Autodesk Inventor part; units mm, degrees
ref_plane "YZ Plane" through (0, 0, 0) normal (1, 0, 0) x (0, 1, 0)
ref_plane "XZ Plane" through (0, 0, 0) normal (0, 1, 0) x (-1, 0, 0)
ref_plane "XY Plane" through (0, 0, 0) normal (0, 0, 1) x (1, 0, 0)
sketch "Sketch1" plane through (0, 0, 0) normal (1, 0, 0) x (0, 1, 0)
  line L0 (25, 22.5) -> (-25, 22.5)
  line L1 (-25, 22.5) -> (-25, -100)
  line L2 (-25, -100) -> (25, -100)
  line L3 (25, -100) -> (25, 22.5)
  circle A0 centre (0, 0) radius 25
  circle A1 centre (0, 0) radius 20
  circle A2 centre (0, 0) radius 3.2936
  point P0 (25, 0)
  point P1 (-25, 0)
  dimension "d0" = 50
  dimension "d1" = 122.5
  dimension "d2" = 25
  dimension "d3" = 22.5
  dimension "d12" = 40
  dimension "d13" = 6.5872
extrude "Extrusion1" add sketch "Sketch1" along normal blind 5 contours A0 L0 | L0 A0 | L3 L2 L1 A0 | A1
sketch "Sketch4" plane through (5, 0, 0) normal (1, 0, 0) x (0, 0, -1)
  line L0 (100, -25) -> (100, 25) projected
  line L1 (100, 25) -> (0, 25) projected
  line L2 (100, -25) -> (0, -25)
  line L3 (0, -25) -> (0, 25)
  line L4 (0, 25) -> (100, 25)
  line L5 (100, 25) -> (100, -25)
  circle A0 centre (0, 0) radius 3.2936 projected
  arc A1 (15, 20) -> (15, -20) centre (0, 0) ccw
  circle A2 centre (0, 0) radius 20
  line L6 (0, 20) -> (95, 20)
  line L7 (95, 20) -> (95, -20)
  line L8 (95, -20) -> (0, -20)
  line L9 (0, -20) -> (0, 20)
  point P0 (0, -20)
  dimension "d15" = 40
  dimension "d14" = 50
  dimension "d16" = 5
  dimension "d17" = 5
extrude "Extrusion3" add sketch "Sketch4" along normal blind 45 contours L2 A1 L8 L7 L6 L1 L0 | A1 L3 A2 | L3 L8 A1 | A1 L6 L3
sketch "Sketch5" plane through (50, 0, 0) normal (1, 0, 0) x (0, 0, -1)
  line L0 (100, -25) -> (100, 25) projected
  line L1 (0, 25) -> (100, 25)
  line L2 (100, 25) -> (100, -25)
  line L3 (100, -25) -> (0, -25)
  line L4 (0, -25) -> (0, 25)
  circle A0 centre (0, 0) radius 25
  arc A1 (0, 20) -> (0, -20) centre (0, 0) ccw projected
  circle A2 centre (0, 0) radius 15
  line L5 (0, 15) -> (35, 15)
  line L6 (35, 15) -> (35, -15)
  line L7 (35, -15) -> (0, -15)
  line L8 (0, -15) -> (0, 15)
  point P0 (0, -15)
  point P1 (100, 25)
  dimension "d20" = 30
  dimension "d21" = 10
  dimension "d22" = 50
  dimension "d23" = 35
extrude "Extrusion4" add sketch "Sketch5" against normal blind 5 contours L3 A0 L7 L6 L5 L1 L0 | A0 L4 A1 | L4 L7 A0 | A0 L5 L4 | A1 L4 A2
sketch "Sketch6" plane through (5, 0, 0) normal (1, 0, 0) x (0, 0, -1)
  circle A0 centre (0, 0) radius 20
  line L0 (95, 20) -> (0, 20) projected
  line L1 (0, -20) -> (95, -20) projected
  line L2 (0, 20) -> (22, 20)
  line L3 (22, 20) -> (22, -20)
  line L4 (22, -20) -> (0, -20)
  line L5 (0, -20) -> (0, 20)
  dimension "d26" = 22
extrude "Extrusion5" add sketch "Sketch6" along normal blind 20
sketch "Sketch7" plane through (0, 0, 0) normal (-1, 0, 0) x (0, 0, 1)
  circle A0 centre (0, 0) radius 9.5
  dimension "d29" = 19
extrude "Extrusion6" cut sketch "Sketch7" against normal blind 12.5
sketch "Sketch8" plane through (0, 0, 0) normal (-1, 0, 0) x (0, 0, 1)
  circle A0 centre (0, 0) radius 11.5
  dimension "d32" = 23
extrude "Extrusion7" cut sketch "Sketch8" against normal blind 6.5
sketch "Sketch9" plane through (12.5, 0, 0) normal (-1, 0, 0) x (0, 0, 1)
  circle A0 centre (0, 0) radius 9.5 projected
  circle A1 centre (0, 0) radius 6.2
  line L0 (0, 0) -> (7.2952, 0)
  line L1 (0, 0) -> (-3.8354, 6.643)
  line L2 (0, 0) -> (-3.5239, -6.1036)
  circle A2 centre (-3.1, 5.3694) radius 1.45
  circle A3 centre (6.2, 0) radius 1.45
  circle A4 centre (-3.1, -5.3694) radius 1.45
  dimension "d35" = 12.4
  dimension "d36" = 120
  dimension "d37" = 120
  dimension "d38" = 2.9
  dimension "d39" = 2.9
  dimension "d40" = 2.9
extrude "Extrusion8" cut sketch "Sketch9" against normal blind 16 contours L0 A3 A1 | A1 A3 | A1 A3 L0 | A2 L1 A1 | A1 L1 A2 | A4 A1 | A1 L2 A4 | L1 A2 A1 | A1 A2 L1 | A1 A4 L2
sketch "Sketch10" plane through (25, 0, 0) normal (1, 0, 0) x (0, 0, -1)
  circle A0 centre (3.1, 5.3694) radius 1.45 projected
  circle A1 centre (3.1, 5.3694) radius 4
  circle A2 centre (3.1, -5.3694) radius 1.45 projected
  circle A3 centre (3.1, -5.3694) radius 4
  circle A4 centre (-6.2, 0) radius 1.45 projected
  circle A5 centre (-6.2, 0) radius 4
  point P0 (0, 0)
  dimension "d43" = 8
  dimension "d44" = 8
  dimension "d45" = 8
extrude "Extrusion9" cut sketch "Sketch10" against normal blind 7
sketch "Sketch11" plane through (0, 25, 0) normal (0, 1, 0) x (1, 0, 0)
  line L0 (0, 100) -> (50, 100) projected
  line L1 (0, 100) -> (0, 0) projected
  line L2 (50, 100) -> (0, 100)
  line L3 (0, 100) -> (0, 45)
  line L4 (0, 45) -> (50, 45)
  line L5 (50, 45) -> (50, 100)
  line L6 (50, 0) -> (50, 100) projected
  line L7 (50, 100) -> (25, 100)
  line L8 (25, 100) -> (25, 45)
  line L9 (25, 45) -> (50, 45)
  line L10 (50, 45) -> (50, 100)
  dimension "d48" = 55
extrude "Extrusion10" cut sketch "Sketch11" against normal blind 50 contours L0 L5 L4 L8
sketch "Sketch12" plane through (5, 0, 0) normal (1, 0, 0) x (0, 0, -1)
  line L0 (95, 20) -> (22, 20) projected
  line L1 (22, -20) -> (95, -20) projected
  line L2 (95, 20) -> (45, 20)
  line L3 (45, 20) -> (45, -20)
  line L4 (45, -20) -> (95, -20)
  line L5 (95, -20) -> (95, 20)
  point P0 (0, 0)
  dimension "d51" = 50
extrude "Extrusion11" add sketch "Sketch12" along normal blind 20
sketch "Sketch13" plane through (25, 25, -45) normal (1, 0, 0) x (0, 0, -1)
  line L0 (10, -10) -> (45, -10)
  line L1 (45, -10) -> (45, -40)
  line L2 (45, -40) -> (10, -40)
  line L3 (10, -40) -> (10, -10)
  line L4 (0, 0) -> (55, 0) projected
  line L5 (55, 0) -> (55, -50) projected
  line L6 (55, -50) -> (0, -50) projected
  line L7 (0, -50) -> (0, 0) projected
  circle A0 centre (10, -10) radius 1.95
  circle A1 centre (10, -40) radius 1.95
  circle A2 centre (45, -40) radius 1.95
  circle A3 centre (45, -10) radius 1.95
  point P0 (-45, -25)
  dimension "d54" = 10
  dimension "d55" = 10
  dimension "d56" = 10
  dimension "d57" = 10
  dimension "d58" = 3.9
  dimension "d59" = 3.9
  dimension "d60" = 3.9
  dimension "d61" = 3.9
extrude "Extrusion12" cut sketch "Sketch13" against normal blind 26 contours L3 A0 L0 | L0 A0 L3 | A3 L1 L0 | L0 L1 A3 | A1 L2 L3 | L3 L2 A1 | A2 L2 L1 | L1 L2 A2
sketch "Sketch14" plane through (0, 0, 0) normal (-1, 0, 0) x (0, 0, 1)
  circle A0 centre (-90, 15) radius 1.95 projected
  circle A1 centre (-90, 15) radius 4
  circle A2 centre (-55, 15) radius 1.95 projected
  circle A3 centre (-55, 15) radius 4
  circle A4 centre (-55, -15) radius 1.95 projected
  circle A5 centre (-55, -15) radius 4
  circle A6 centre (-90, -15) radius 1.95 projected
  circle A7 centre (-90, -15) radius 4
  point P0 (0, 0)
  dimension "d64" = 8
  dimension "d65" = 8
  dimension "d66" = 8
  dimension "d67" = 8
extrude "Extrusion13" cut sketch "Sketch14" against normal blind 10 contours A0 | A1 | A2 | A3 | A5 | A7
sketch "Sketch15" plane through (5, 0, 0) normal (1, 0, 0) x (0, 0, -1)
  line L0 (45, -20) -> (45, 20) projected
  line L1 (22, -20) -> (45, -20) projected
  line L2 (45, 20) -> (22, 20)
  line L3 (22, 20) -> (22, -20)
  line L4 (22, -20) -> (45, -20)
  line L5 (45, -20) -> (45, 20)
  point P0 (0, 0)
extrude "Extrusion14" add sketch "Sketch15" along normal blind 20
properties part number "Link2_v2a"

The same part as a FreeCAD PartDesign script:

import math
import FreeCAD as App
import Part
import Sketcher
from FreeCAD import Vector

doc = App.newDocument("Part")
body = doc.addObject("PartDesign::Body", "Body")

sketch1 = body.newObject("Sketcher::SketchObject", "Sketch")
sketch1.AttachmentSupport = (doc.getObject("YZ_Plane"), [""])
sketch1.MapMode = "FlatFace"
sketch1.addGeometry([
    Part.ArcOfCircle(Part.Circle(Vector(0, 0, 0), Vector(0, 0, 1), 25), math.radians(0), math.radians(180)),
    Part.LineSegment(Vector(-25, 0, 0), Vector(-25, -100, 0)),
    Part.LineSegment(Vector(-25, -100, 0), Vector(25, -100, 0)),
    Part.LineSegment(Vector(25, -100, 0), Vector(25, 0, 0)),
    Part.Circle(Vector(0, 0, 0), Vector(0, 0, 1), 3.3),
], False)
sketch1.addConstraint([
    Sketcher.Constraint("Tangent", 0, 2, 1, 1),
    Sketcher.Constraint("Coincident", 1, 2, 2, 1),
    Sketcher.Constraint("Coincident", 2, 2, 3, 1),
    Sketcher.Constraint("Tangent", 3, 2, 0, 1),
    Sketcher.Constraint("Vertical", 1),
    Sketcher.Constraint("Horizontal", 2),
    Sketcher.Constraint("Vertical", 3),
    Sketcher.Constraint("Coincident", 0, 3, -1, 1),
    Sketcher.Constraint("Coincident", 4, 3, -1, 1),
    Sketcher.Constraint("Radius", 0, 25.0),
    Sketcher.Constraint("Diameter", 4, 6.5872),
    Sketcher.Constraint("DistanceY", 1, 2, 1, 1, 100.0),
])
pad1 = body.newObject("PartDesign::Pad", "Pad")
pad1.Profile = sketch1
pad1.Length = 5

sketch2 = body.newObject("Sketcher::SketchObject", "Sketch001")
sketch2.AttachmentSupport = (doc.getObject("YZ_Plane"), [""])
sketch2.MapMode = "FlatFace"
sketch2.AttachmentOffset = App.Placement(Vector(0, 0, 5), App.Rotation())
sketch2.addGeometry([
    Part.LineSegment(Vector(-25, 0, 0), Vector(-25, -100, 0)),
    Part.LineSegment(Vector(-25, -100, 0), Vector(25, -100, 0)),
    Part.LineSegment(Vector(25, -100, 0), Vector(25, 0, 0)),
    Part.ArcOfCircle(Part.Circle(Vector(0, 0, 0), Vector(0, 0, 1), 25), math.radians(0), math.radians(180)),
    Part.LineSegment(Vector(-20, -95, 0), Vector(-20, 0, 0)),
    Part.ArcOfCircle(Part.Circle(Vector(0, 0, 0), Vector(0, 0, 1), 20), math.radians(0), math.radians(180)),
    Part.LineSegment(Vector(20, 0, 0), Vector(20, -95, 0)),
    Part.LineSegment(Vector(20, -95, 0), Vector(-20, -95, 0)),
], False)
sketch2.addConstraint([
    Sketcher.Constraint("Coincident", 0, 2, 1, 1),
    Sketcher.Constraint("Coincident", 1, 2, 2, 1),
    Sketcher.Constraint("Tangent", 2, 2, 3, 1),
    Sketcher.Constraint("Tangent", 3, 2, 0, 1),
    Sketcher.Constraint("Tangent", 4, 2, 5, 2),
    Sketcher.Constraint("Tangent", 5, 1, 6, 1),
    Sketcher.Constraint("Coincident", 6, 2, 7, 1),
    Sketcher.Constraint("Coincident", 7, 2, 4, 1),
    Sketcher.Constraint("Vertical", 0),
    Sketcher.Constraint("Horizontal", 1),
    Sketcher.Constraint("Vertical", 2),
    Sketcher.Constraint("Vertical", 4),
    Sketcher.Constraint("Vertical", 6),
    Sketcher.Constraint("Horizontal", 7),
    Sketcher.Constraint("Coincident", 3, 3, -1, 1),
    Sketcher.Constraint("Coincident", 5, 3, -1, 1),
    Sketcher.Constraint("Radius", 3, 25.0),
    Sketcher.Constraint("Radius", 5, 20.0),
    Sketcher.Constraint("DistanceY", 1, 2, 6, 2, 5.0),
    Sketcher.Constraint("DistanceY", 0, 2, 0, 1, 100.0),
])
pad2 = body.newObject("PartDesign::Pad", "Pad001")
pad2.Profile = sketch2
pad2.Length = 45

sketch3 = body.newObject("Sketcher::SketchObject", "Sketch002")
sketch3.AttachmentSupport = (doc.getObject("YZ_Plane"), [""])
sketch3.MapMode = "FlatFace"
sketch3.AttachmentOffset = App.Placement(Vector(0, 0, 50), App.Rotation())
sketch3.addGeometry([
    Part.LineSegment(Vector(-25, 0, 0), Vector(-25, -100, 0)),
    Part.LineSegment(Vector(-25, -100, 0), Vector(25, -100, 0)),
    Part.LineSegment(Vector(25, -100, 0), Vector(25, 0, 0)),
    Part.ArcOfCircle(Part.Circle(Vector(0, 0, 0), Vector(0, 0, 1), 25), math.radians(0), math.radians(180)),
    Part.LineSegment(Vector(-15, -35, 0), Vector(-15, 0, 0)),
    Part.ArcOfCircle(Part.Circle(Vector(0, 0, 0), Vector(0, 0, 1), 15), math.radians(0), math.radians(180)),
    Part.LineSegment(Vector(15, 0, 0), Vector(15, -35, 0)),
    Part.LineSegment(Vector(15, -35, 0), Vector(-15, -35, 0)),
], False)
sketch3.addConstraint([
    Sketcher.Constraint("Coincident", 0, 2, 1, 1),
    Sketcher.Constraint("Coincident", 1, 2, 2, 1),
    Sketcher.Constraint("Tangent", 2, 2, 3, 1),
    Sketcher.Constraint("Tangent", 3, 2, 0, 1),
    Sketcher.Constraint("Tangent", 4, 2, 5, 2),
    Sketcher.Constraint("Tangent", 5, 1, 6, 1),
    Sketcher.Constraint("Coincident", 6, 2, 7, 1),
    Sketcher.Constraint("Coincident", 7, 2, 4, 1),
    Sketcher.Constraint("Vertical", 0),
    Sketcher.Constraint("Horizontal", 1),
    Sketcher.Constraint("Vertical", 2),
    Sketcher.Constraint("Vertical", 4),
    Sketcher.Constraint("Vertical", 6),
    Sketcher.Constraint("Horizontal", 7),
    Sketcher.Constraint("Coincident", 3, 3, -1, 1),
    Sketcher.Constraint("Coincident", 5, 3, -1, 1),
    Sketcher.Constraint("Radius", 3, 25.0),
    Sketcher.Constraint("Radius", 5, 15.0),
    Sketcher.Constraint("DistanceY", 4, 1, 4, 2, 35.0),
    Sketcher.Constraint("DistanceY", 0, 2, 0, 1, 100.0),
])
pad3 = body.newObject("PartDesign::Pad", "Pad002")
pad3.Profile = sketch3
pad3.Length = 5
pad3.Reversed = True

sketch4 = body.newObject("Sketcher::SketchObject", "Sketch003")
sketch4.AttachmentSupport = (doc.getObject("YZ_Plane"), [""])
sketch4.MapMode = "FlatFace"
sketch4.AttachmentOffset = App.Placement(Vector(0, 0, 5), App.Rotation())
sketch4.addGeometry([
    Part.LineSegment(Vector(-20, 0, 0), Vector(-20, -22, 0)),
    Part.LineSegment(Vector(-20, -22, 0), Vector(20, -22, 0)),
    Part.LineSegment(Vector(20, -22, 0), Vector(20, 0, 0)),
    Part.ArcOfCircle(Part.Circle(Vector(0, 0, 0), Vector(0, 0, 1), 20), math.radians(0), math.radians(180)),
], False)
sketch4.addConstraint([
    Sketcher.Constraint("Coincident", 0, 2, 1, 1),
    Sketcher.Constraint("Coincident", 1, 2, 2, 1),
    Sketcher.Constraint("Tangent", 2, 2, 3, 1),
    Sketcher.Constraint("Tangent", 3, 2, 0, 1),
    Sketcher.Constraint("Vertical", 0),
    Sketcher.Constraint("Horizontal", 1),
    Sketcher.Constraint("Vertical", 2),
    Sketcher.Constraint("Coincident", 3, 3, -1, 1),
    Sketcher.Constraint("DistanceY", 0, 2, 0, 1, 22.0),
    Sketcher.Constraint("Radius", 3, 20.0),
])
pad4 = body.newObject("PartDesign::Pad", "Pad003")
pad4.Profile = sketch4
pad4.Length = 20

sketch5 = body.newObject("Sketcher::SketchObject", "Sketch004")
sketch5.AttachmentSupport = (doc.getObject("YZ_Plane"), [""])
sketch5.MapMode = "FlatFace"
sketch5.addGeometry(Part.Circle(Vector(0, 0, 0), Vector(0, 0, 1), 10), False)
sketch5.addConstraint([
    Sketcher.Constraint("Coincident", 0, 3, -1, 1),
    Sketcher.Constraint("Diameter", 0, 19.0),
])
pocket1 = body.newObject("PartDesign::Pocket", "Pocket")
pocket1.Profile = sketch5
pocket1.Length = 12.5
pocket1.Reversed = True

sketch6 = body.newObject("Sketcher::SketchObject", "Sketch005")
sketch6.AttachmentSupport = (doc.getObject("YZ_Plane"), [""])
sketch6.MapMode = "FlatFace"
sketch6.addGeometry(Part.Circle(Vector(0, 0, 0), Vector(0, 0, 1), 12), False)
sketch6.addConstraint([
    Sketcher.Constraint("Coincident", 0, 3, -1, 1),
    Sketcher.Constraint("Diameter", 0, 23.0),
])
pocket2 = body.newObject("PartDesign::Pocket", "Pocket001")
pocket2.Profile = sketch6
pocket2.Length = 6.5
pocket2.Reversed = True

sketch7 = body.newObject("Sketcher::SketchObject", "Sketch006")
sketch7.AttachmentSupport = (doc.getObject("YZ_Plane"), [""])
sketch7.MapMode = "FlatFace"
sketch7.AttachmentOffset = App.Placement(Vector(0, 0, 12.5), App.Rotation())
sketch7.addGeometry([
    Part.Circle(Vector(0, 6.2, 0), Vector(0, 0, 1), 1.4),
    Part.Circle(Vector(5.4, -3.1, 0), Vector(0, 0, 1), 1.4),
    Part.Circle(Vector(-5.4, -3.1, 0), Vector(0, 0, 1), 1.4),
], False)
sketch7.addConstraint([
    Sketcher.Constraint("Equal", 0, 1),
    Sketcher.Constraint("Equal", 1, 2),
    Sketcher.Constraint("Symmetric", 1, 3, 2, 3, -2),
    Sketcher.Constraint("PointOnObject", 0, 3, -2),
    Sketcher.Constraint("Diameter", 0, 2.9),
    Sketcher.Constraint("DistanceY", -1, 1, 0, 3, 6.2),
    Sketcher.Constraint("DistanceY", 1, 3, -1, 1, 3.1),
    Sketcher.Constraint("DistanceX", -1, 1, 1, 3, 5.3694),
])
pocket3 = body.newObject("PartDesign::Pocket", "Pocket002")
pocket3.Profile = sketch7
pocket3.Length = 16
pocket3.Reversed = True

sketch8 = body.newObject("Sketcher::SketchObject", "Sketch007")
sketch8.AttachmentSupport = (doc.getObject("YZ_Plane"), [""])
sketch8.MapMode = "FlatFace"
sketch8.AttachmentOffset = App.Placement(Vector(0, 0, 25), App.Rotation())
sketch8.addGeometry([
    Part.Circle(Vector(5.4, -3.1, 0), Vector(0, 0, 1), 4),
    Part.Circle(Vector(5.4, -3.1, 0), Vector(0, 0, 1), 1.4),
    Part.Circle(Vector(-5.4, -3.1, 0), Vector(0, 0, 1), 4),
    Part.Circle(Vector(-5.4, -3.1, 0), Vector(0, 0, 1), 1.4),
    Part.Circle(Vector(0, 6.2, 0), Vector(0, 0, 1), 4),
    Part.Circle(Vector(0, 6.2, 0), Vector(0, 0, 1), 1.4),
], False)
sketch8.addConstraint([
    Sketcher.Constraint("Coincident", 1, 3, 0, 3),
    Sketcher.Constraint("Coincident", 3, 3, 2, 3),
    Sketcher.Constraint("Coincident", 5, 3, 4, 3),
    Sketcher.Constraint("Equal", 0, 2),
    Sketcher.Constraint("Equal", 1, 3),
    Sketcher.Constraint("Equal", 2, 4),
    Sketcher.Constraint("Equal", 3, 5),
    Sketcher.Constraint("Symmetric", 0, 3, 2, 3, -2),
    Sketcher.Constraint("PointOnObject", 4, 3, -2),
    Sketcher.Constraint("Diameter", 0, 8.0),
    Sketcher.Constraint("Diameter", 1, 2.9),
    Sketcher.Constraint("DistanceY", 0, 3, -1, 1, 3.1),
    Sketcher.Constraint("DistanceY", -1, 1, 4, 3, 6.2),
    Sketcher.Constraint("DistanceX", -1, 1, 0, 3, 5.3694),
])
pocket4 = body.newObject("PartDesign::Pocket", "Pocket003")
pocket4.Profile = sketch8
pocket4.Length = 7

sketch9 = body.newObject("Sketcher::SketchObject", "Sketch008")
sketch9.AttachmentSupport = (doc.getObject("XZ_Plane"), [""])
sketch9.MapMode = "FlatFace"
sketch9.AttachmentOffset = App.Placement(Vector(0, 0, -25), App.Rotation())
sketch9.addGeometry([
    Part.LineSegment(Vector(50, -100, 0), Vector(25, -100, 0)),
    Part.LineSegment(Vector(25, -100, 0), Vector(25, -45, 0)),
    Part.LineSegment(Vector(25, -45, 0), Vector(50, -45, 0)),
    Part.LineSegment(Vector(50, -45, 0), Vector(50, -100, 0)),
], False)
sketch9.addConstraint([
    Sketcher.Constraint("Coincident", 0, 2, 1, 1),
    Sketcher.Constraint("Coincident", 1, 2, 2, 1),
    Sketcher.Constraint("Coincident", 2, 2, 3, 1),
    Sketcher.Constraint("Coincident", 3, 2, 0, 1),
    Sketcher.Constraint("Horizontal", 0),
    Sketcher.Constraint("Vertical", 1),
    Sketcher.Constraint("Horizontal", 2),
    Sketcher.Constraint("Vertical", 3),
    Sketcher.Constraint("DistanceY", 1, 1, 1, 2, 55.0),
    Sketcher.Constraint("DistanceX", 0, 2, 0, 1, 25.0),
    Sketcher.Constraint("DistanceX", -1, 1, 0, 2, 25.0),
    Sketcher.Constraint("DistanceY", 0, 2, -1, 1, 100.0),
])
pocket5 = body.newObject("PartDesign::Pocket", "Pocket004")
pocket5.Profile = sketch9
pocket5.Length = 50
pocket5.Reversed = True

sketch10 = body.newObject("Sketcher::SketchObject", "Sketch009")
sketch10.AttachmentSupport = (doc.getObject("YZ_Plane"), [""])
sketch10.MapMode = "FlatFace"
sketch10.AttachmentOffset = App.Placement(Vector(0, 0, 5), App.Rotation())
sketch10.addGeometry([
    Part.LineSegment(Vector(-20, -95, 0), Vector(20, -95, 0)),
    Part.LineSegment(Vector(20, -95, 0), Vector(20, -45, 0)),
    Part.LineSegment(Vector(20, -45, 0), Vector(-20, -45, 0)),
    Part.LineSegment(Vector(-20, -45, 0), Vector(-20, -95, 0)),
], False)
sketch10.addConstraint([
    Sketcher.Constraint("Coincident", 0, 2, 1, 1),
    Sketcher.Constraint("Coincident", 1, 2, 2, 1),
    Sketcher.Constraint("Coincident", 2, 2, 3, 1),
    Sketcher.Constraint("Coincident", 3, 2, 0, 1),
    Sketcher.Constraint("Horizontal", 0),
    Sketcher.Constraint("Vertical", 1),
    Sketcher.Constraint("Horizontal", 2),
    Sketcher.Constraint("Vertical", 3),
    Sketcher.Constraint("DistanceY", 1, 1, 1, 2, 50.0),
    Sketcher.Constraint("DistanceX", 0, 1, 0, 2, 40.0),
    Sketcher.Constraint("DistanceX", -1, 1, 0, 2, 20.0),
    Sketcher.Constraint("DistanceY", 0, 2, -1, 1, 95.0),
])
pad5 = body.newObject("PartDesign::Pad", "Pad004")
pad5.Profile = sketch10
pad5.Length = 20

sketch11 = body.newObject("Sketcher::SketchObject", "Sketch010")
sketch11.AttachmentSupport = (doc.getObject("YZ_Plane"), [""])
sketch11.MapMode = "FlatFace"
sketch11.AttachmentOffset = App.Placement(Vector(0, 0, 25), App.Rotation())
sketch11.addGeometry([
    Part.Circle(Vector(15, -55, 0), Vector(0, 0, 1), 1.9),
    Part.Circle(Vector(15, -90, 0), Vector(0, 0, 1), 1.9),
    Part.Circle(Vector(-15, -55, 0), Vector(0, 0, 1), 1.9),
    Part.Circle(Vector(-15, -90, 0), Vector(0, 0, 1), 1.9),
], False)
sketch11.addConstraint([
    Sketcher.Constraint("Equal", 0, 1),
    Sketcher.Constraint("Equal", 1, 2),
    Sketcher.Constraint("Equal", 2, 3),
    Sketcher.Constraint("Symmetric", 0, 3, 2, 3, -2),
    Sketcher.Constraint("Symmetric", 1, 3, 3, 3, -2),
    Sketcher.Constraint("Vertical", 0, 3, 1, 3),
    Sketcher.Constraint("Diameter", 0, 3.9),
    Sketcher.Constraint("DistanceX", -1, 1, 0, 3, 15.0),
    Sketcher.Constraint("DistanceY", 0, 3, -1, 1, 55.0),
    Sketcher.Constraint("DistanceY", 1, 3, -1, 1, 90.0),
])
pocket6 = body.newObject("PartDesign::Pocket", "Pocket005")
pocket6.Profile = sketch11
pocket6.Length = 26

sketch12 = body.newObject("Sketcher::SketchObject", "Sketch011")
sketch12.AttachmentSupport = (doc.getObject("YZ_Plane"), [""])
sketch12.MapMode = "FlatFace"
sketch12.addGeometry([
    Part.Circle(Vector(15, -90, 0), Vector(0, 0, 1), 4),
    Part.Circle(Vector(15, -55, 0), Vector(0, 0, 1), 4),
    Part.Circle(Vector(-15, -55, 0), Vector(0, 0, 1), 4),
    Part.Circle(Vector(-15, -55, 0), Vector(0, 0, 1), 1.9),
    Part.Circle(Vector(-15, -90, 0), Vector(0, 0, 1), 4),
    Part.Circle(Vector(-15, -90, 0), Vector(0, 0, 1), 1.9),
], False)
sketch12.addConstraint([
    Sketcher.Constraint("Coincident", 3, 3, 2, 3),
    Sketcher.Constraint("Coincident", 5, 3, 4, 3),
    Sketcher.Constraint("Equal", 0, 1),
    Sketcher.Constraint("Equal", 1, 2),
    Sketcher.Constraint("Equal", 2, 4),
    Sketcher.Constraint("Equal", 3, 5),
    Sketcher.Constraint("Symmetric", 1, 3, 2, 3, -2),
    Sketcher.Constraint("Symmetric", 0, 3, 4, 3, -2),
    Sketcher.Constraint("Vertical", 0, 3, 1, 3),
    Sketcher.Constraint("Diameter", 0, 8.0),
    Sketcher.Constraint("Diameter", 3, 3.9),
    Sketcher.Constraint("DistanceX", -1, 1, 0, 3, 15.0),
    Sketcher.Constraint("DistanceY", 0, 3, -1, 1, 90.0),
    Sketcher.Constraint("DistanceY", 1, 3, -1, 1, 55.0),
])
pocket7 = body.newObject("PartDesign::Pocket", "Pocket006")
pocket7.Profile = sketch12
pocket7.Length = 10
pocket7.Reversed = True

sketch13 = body.newObject("Sketcher::SketchObject", "Sketch012")
sketch13.AttachmentSupport = (doc.getObject("YZ_Plane"), [""])
sketch13.MapMode = "FlatFace"
sketch13.AttachmentOffset = App.Placement(Vector(0, 0, 5), App.Rotation())
sketch13.addGeometry([
    Part.LineSegment(Vector(-20, -22, 0), Vector(-20, -45, 0)),
    Part.LineSegment(Vector(-20, -45, 0), Vector(20, -45, 0)),
    Part.LineSegment(Vector(20, -45, 0), Vector(20, -22, 0)),
    Part.LineSegment(Vector(20, -22, 0), Vector(-20, -22, 0)),
], False)
sketch13.addConstraint([
    Sketcher.Constraint("Coincident", 0, 2, 1, 1),
    Sketcher.Constraint("Coincident", 1, 2, 2, 1),
    Sketcher.Constraint("Coincident", 2, 2, 3, 1),
    Sketcher.Constraint("Coincident", 3, 2, 0, 1),
    Sketcher.Constraint("Vertical", 0),
    Sketcher.Constraint("Horizontal", 1),
    Sketcher.Constraint("Vertical", 2),
    Sketcher.Constraint("Horizontal", 3),
    Sketcher.Constraint("DistanceX", 1, 1, 1, 2, 40.0),
    Sketcher.Constraint("DistanceY", 0, 2, 0, 1, 23.0),
    Sketcher.Constraint("DistanceX", 0, 2, -1, 1, 20.0),
    Sketcher.Constraint("DistanceY", 0, 2, -1, 1, 45.0),
])
pad6 = body.newObject("PartDesign::Pad", "Pad005")
pad6.Profile = sketch13
pad6.Length = 20

doc.recompute()
